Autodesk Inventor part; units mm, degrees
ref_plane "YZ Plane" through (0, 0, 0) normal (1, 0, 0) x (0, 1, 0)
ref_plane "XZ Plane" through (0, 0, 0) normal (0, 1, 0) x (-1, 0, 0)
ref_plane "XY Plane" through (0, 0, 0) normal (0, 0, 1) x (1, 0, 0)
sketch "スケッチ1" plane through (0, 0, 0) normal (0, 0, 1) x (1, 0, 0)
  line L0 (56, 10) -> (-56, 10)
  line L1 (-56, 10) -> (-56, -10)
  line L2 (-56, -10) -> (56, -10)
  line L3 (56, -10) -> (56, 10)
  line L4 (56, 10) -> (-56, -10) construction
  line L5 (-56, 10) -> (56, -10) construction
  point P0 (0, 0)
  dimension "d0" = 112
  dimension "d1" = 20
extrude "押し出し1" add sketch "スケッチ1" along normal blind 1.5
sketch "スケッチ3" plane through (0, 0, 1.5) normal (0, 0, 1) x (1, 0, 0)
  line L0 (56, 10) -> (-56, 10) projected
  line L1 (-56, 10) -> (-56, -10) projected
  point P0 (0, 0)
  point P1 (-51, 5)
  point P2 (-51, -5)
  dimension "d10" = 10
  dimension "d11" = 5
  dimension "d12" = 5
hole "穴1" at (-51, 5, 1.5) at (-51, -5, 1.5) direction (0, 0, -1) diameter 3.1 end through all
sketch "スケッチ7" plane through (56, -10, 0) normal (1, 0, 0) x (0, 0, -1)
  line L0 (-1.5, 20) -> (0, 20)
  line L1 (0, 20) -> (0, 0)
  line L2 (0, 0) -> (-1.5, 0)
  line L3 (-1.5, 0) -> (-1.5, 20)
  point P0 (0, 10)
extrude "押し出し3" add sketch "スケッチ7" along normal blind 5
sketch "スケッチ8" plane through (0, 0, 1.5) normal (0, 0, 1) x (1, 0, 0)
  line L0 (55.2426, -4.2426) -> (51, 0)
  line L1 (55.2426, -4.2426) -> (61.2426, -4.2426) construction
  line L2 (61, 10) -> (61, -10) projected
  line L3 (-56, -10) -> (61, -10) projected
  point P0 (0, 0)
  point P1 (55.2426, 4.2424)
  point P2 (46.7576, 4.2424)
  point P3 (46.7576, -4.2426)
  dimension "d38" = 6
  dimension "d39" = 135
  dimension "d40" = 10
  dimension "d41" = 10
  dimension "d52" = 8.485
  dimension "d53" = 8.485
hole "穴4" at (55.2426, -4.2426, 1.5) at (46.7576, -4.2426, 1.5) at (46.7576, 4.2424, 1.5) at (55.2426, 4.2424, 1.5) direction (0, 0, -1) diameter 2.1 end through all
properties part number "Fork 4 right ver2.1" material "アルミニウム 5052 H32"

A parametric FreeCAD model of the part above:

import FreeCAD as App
import Part
import Sketcher

doc = App.newDocument("Part")
body = doc.addObject("PartDesign::Body", "Body")

# Sketch on XY plane
sketch1 = body.newObject("Sketcher::SketchObject", "Sketch")
sketch1.AttachmentSupport = (doc.getObject("XY_Plane"), [""])
sketch1.MapMode = "FlatFace"
sketch1.addGeometry([
    Part.LineSegment(App.Vector(56, -10, 0), App.Vector(56, 10, 0)),
    Part.LineSegment(App.Vector(56, 10, 0), App.Vector(-56, 10, 0)),
    Part.LineSegment(App.Vector(-56, 10, 0), App.Vector(-56, -10, 0)),
    Part.LineSegment(App.Vector(-56, -10, 0), App.Vector(56, -10, 0)),
], False)
sketch1.addConstraint([
    Sketcher.Constraint("Coincident", 0, 2, 1, 1),
    Sketcher.Constraint("Coincident", 1, 2, 2, 1),
    Sketcher.Constraint("Coincident", 2, 2, 3, 1),
    Sketcher.Constraint("Coincident", 3, 2, 0, 1),
    Sketcher.Constraint("Vertical", 0),
    Sketcher.Constraint("Horizontal", 1),
    Sketcher.Constraint("Vertical", 2),
    Sketcher.Constraint("Horizontal", 3),
    Sketcher.Constraint("Symmetric", 0, 2, 2, 2, -1, 1),
    Sketcher.Constraint("DistanceX", 1, 2, 1, 1, 112.0),
    Sketcher.Constraint("DistanceY", 0, 1, 0, 2, 20.0),
])
pad1 = body.newObject("PartDesign::Pad", "Pad")
pad1.Profile = sketch1
pad1.Length = 1.5

# Sketch on XY plane
sketch2 = body.newObject("Sketcher::SketchObject", "Sketch001")
sketch2.AttachmentSupport = (doc.getObject("XY_Plane"), [""])
sketch2.MapMode = "FlatFace"
sketch2.AttachmentOffset = App.Placement(App.Vector(0, 0, 1.5), App.Rotation())
sketch2.addGeometry([
    Part.Circle(App.Vector(-51, 5, 0), App.Vector(0, 0, 1), 1.6),
    Part.Circle(App.Vector(-51, -5, 0), App.Vector(0, 0, 1), 1.6),
], False)
sketch2.addConstraint([
    Sketcher.Constraint("Equal", 0, 1),
    Sketcher.Constraint("Symmetric", 0, 3, 1, 3, -1),
    Sketcher.Constraint("Diameter", 0, 3.1),
    Sketcher.Constraint("DistanceX", 0, 3, -1, 1, 51.0),
    Sketcher.Constraint("DistanceY", -1, 1, 0, 3, 5.0),
])
doc.recompute()
hole = body.newObject("PartDesign::Hole", "Hole")
hole.Profile = sketch2
hole.ThreadType = "None"
hole.Diameter = 3.1
hole.DepthType = "ThroughAll"

# Sketch on YZ plane
sketch3 = body.newObject("Sketcher::SketchObject", "Sketch002")
sketch3.AttachmentSupport = (doc.getObject("YZ_Plane"), [""])
sketch3.MapMode = "FlatFace"
sketch3.AttachmentOffset = App.Placement(App.Vector(0, 0, 56), App.Rotation())
sketch3.addGeometry([
    Part.LineSegment(App.Vector(10, 0, 0), App.Vector(10, 1.5, 0)),
    Part.LineSegment(App.Vector(10, 1.5, 0), App.Vector(-10, 1.5, 0)),
    Part.LineSegment(App.Vector(-10, 1.5, 0), App.Vector(-10, 0, 0)),
    Part.LineSegment(App.Vector(-10, 0, 0), App.Vector(10, 0, 0)),
], False)
sketch3.addConstraint([
    Sketcher.Constraint("Coincident", 0, 2, 1, 1),
    Sketcher.Constraint("Coincident", 1, 2, 2, 1),
    Sketcher.Constraint("Coincident", 2, 2, 3, 1),
    Sketcher.Constraint("Coincident", 3, 2, 0, 1),
    Sketcher.Constraint("Vertical", 0),
    Sketcher.Constraint("Horizontal", 1),
    Sketcher.Constraint("Vertical", 2),
    Sketcher.Constraint("Horizontal", 3),
    Sketcher.Constraint("Symmetric", 2, 2, 3, 2, -1, 1),
    Sketcher.Constraint("DistanceX", 1, 2, 1, 1, 20.0),
    Sketcher.Constraint("DistanceY", 0, 1, 0, 2, 1.5),
])
pad2 = body.newObject("PartDesign::Pad", "Pad001")
pad2.Profile = sketch3
pad2.Length = 5

# Sketch on XY plane
sketch4 = body.newObject("Sketcher::SketchObject", "Sketch003")
sketch4.AttachmentSupport = (doc.getObject("XY_Plane"), [""])
sketch4.MapMode = "FlatFace"
sketch4.AttachmentOffset = App.Placement(App.Vector(0, 0, 1.5), App.Rotation())
sketch4.addGeometry([
    Part.Circle(App.Vector(55.2, -4.2, 0), App.Vector(0, 0, 1), 1.1),
    Part.Circle(App.Vector(46.8, -4.2, 0), App.Vector(0, 0, 1), 1.1),
    Part.Circle(App.Vector(46.8, 4.2, 0), App.Vector(0, 0, 1), 1.1),
    Part.Circle(App.Vector(55.2, 4.2, 0), App.Vector(0, 0, 1), 1.1),
], False)
sketch4.addConstraint([
    Sketcher.Constraint("Equal", 0, 1),
    Sketcher.Constraint("Equal", 1, 2),
    Sketcher.Constraint("Equal", 2, 3),
    Sketcher.Constraint("Symmetric", 1, 3, 2, 3, -1),
    Sketcher.Constraint("Symmetric", 0, 3, 3, 3, -1),
    Sketcher.Constraint("Horizontal", 0, 3, 1, 3),
    Sketcher.Constraint("Diameter", 0, 2.1),
    Sketcher.Constraint("DistanceX", 1, 3, 0, 3, 8.485),
    Sketcher.Constraint("DistanceY", 1, 3, 2, 3, 8.485),
    Sketcher.Constraint("DistanceX", -1, 1, 0, 3, 55.2426),
])
doc.recompute()
hole2 = body.newObject("PartDesign::Hole", "Hole001")
hole2.Profile = sketch4
hole2.ThreadType = "None"
hole2.Diameter = 2.1
hole2.DepthType = "ThroughAll"

doc.recompute()
